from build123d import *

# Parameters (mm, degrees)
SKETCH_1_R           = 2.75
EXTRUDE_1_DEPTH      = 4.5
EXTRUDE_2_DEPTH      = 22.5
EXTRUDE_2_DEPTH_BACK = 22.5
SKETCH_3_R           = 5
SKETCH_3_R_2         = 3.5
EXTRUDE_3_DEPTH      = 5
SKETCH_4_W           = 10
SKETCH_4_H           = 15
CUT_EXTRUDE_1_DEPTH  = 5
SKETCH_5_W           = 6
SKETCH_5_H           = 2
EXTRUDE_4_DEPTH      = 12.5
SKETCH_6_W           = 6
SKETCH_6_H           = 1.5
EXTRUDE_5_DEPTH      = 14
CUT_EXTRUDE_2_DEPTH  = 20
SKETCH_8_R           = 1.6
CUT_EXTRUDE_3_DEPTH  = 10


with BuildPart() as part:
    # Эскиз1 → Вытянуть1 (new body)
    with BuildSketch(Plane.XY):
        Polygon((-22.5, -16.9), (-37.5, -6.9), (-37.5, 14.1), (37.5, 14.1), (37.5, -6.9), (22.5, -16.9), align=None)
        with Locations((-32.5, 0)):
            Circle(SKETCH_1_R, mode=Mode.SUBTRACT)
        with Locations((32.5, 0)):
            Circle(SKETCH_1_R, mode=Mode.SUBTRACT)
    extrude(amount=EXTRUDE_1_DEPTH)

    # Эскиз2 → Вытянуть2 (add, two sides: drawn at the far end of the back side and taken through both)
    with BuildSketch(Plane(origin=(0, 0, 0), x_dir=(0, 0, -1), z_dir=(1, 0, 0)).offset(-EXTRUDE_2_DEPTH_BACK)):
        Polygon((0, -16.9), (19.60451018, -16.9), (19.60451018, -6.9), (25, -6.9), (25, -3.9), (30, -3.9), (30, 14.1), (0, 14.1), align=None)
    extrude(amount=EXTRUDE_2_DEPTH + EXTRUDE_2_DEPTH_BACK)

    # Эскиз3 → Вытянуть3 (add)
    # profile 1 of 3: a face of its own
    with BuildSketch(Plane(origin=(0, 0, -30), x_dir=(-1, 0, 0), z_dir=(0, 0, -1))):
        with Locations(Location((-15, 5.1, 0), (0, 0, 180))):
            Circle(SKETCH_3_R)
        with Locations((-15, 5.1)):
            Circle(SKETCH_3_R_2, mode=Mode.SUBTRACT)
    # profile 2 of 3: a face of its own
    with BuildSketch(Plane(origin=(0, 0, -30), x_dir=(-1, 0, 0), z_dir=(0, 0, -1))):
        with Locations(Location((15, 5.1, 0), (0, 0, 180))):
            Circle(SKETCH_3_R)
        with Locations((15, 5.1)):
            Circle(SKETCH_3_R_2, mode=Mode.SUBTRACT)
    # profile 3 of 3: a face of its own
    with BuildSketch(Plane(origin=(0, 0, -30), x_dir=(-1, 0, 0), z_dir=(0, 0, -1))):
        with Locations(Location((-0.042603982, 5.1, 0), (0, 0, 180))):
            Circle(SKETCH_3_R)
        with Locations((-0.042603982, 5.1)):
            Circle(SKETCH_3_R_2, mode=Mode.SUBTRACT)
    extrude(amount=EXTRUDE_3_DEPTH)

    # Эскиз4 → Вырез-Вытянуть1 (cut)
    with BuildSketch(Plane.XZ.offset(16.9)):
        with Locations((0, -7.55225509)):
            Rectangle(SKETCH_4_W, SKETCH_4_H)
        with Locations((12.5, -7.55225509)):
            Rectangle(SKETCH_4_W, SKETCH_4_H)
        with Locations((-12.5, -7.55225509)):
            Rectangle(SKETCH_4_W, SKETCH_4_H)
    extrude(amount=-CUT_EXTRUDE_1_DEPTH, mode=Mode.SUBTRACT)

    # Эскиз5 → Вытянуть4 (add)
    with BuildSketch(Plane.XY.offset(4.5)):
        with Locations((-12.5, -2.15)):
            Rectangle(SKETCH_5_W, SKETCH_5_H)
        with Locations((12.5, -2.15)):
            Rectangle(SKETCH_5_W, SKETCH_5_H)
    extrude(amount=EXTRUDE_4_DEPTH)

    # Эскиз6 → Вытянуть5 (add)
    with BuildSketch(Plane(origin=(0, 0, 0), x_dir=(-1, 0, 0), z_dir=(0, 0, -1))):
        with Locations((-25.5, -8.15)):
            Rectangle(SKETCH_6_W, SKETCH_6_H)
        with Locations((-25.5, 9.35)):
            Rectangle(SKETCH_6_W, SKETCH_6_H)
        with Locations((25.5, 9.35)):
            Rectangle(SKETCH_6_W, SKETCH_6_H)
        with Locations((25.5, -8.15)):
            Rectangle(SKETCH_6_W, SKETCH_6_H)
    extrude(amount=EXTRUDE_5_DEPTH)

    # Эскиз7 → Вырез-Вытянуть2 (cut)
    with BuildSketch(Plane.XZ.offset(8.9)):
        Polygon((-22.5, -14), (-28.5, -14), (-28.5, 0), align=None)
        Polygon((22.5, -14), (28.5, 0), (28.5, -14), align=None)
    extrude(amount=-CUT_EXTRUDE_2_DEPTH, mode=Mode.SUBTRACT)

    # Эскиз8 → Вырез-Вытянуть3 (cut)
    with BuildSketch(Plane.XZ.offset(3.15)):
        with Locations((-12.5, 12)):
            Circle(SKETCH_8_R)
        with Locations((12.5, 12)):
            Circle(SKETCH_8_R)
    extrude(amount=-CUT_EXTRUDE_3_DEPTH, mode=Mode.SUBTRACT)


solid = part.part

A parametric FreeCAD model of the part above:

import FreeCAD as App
import Part
import Sketcher

doc = App.newDocument("Part")
body = doc.addObject("PartDesign::Body", "Body")

# Sketch on XY plane
sketch1 = body.newObject("Sketcher::SketchObject", "Sketch")
sketch1.AttachmentSupport = (doc.getObject("XY_Plane"), [""])
sketch1.MapMode = "FlatFace"
sketch1.addGeometry(Part.LineSegment(App.Vector(-37.5, -6.9, 0), App.Vector(-22.5, -16.9, 0)), False)
sketch1.addGeometry(Part.LineSegment(App.Vector(-22.5, -16.9, 0), App.Vector(22.5, -16.9, 0)), False)
sketch1.addGeometry(Part.LineSegment(App.Vector(22.5, -16.9, 0), App.Vector(37.5, -6.9, 0)), False)
sketch1.addGeometry(Part.LineSegment(App.Vector(37.5, -6.9, 0), App.Vector(37.5, 14.1, 0)), False)
sketch1.addGeometry(Part.LineSegment(App.Vector(37.5, 14.1, 0), App.Vector(-37.5, 14.1, 0)), False)
sketch1.addGeometry(Part.LineSegment(App.Vector(-37.5, 14.1, 0), App.Vector(-37.5, -6.9, 0)), False)
sketch1.addGeometry(Part.Circle(App.Vector(32.5, 0, 0), App.Vector(0, 0, 1), 2.75), False)
sketch1.addGeometry(Part.Circle(App.Vector(-32.5, 0, 0), App.Vector(0, 0, 1), 2.75), False)
sketch1.addConstraint(Sketcher.Constraint("Coincident", 0, 2, 1, 1))
sketch1.addConstraint(Sketcher.Constraint("Coincident", 1, 2, 2, 1))
sketch1.addConstraint(Sketcher.Constraint("Coincident", 2, 2, 3, 1))
sketch1.addConstraint(Sketcher.Constraint("Coincident", 3, 2, 4, 1))
sketch1.addConstraint(Sketcher.Constraint("Coincident", 4, 2, 5, 1))
sketch1.addConstraint(Sketcher.Constraint("Coincident", 5, 2, 0, 1))
sketch1.addConstraint(Sketcher.Constraint("Horizontal", 1))
sketch1.addConstraint(Sketcher.Constraint("Vertical", 3))
sketch1.addConstraint(Sketcher.Constraint("Horizontal", 4))
sketch1.addConstraint(Sketcher.Constraint("Vertical", 5))
sketch1.addConstraint(Sketcher.Constraint("Equal", 6, 7))
sketch1.addConstraint(Sketcher.Constraint("Symmetric", 6, 3, 7, 3, -1, 1))
sketch1.addConstraint(Sketcher.Constraint("Symmetric", 2, 2, 5, 2, -2))
sketch1.addConstraint(Sketcher.Constraint("PointOnObject", 6, 3, -1))
sketch1.addConstraint(Sketcher.Constraint("Equal", 0, 2))
sketch1.addConstraint(Sketcher.Constraint("Diameter", 6, 5.5))
sketch1.addConstraint(Sketcher.Constraint("DistanceX", 1, 1, 1, 2, 45.0))
sketch1.addConstraint(Sketcher.Constraint("DistanceX", 4, 2, 4, 1, 75.0))
sketch1.addConstraint(Sketcher.Constraint("DistanceY", 3, 1, 3, 2, 21.0))
sketch1.addConstraint(Sketcher.Constraint("DistanceX", 7, 3, 6, 3, 65.0))
sketch1.addConstraint(Sketcher.Constraint("DistanceY", 1, 2, 2, 2, 10.0))
sketch1.addConstraint(Sketcher.Constraint("DistanceY", 0, 2, -1, 1, 16.9))
pad1 = body.newObject("PartDesign::Pad", "Pad")
pad1.Profile = sketch1
pad1.Length = 4.5

# Sketch on YZ plane
sketch2 = body.newObject("Sketcher::SketchObject", "Sketch001")
sketch2.AttachmentSupport = (doc.getObject("YZ_Plane"), [""])
sketch2.MapMode = "FlatFace"
sketch2.addGeometry(Part.LineSegment(App.Vector(-16.9, 0, 0), App.Vector(-16.9, -19.60451, 0)), False)
sketch2.addGeometry(Part.LineSegment(App.Vector(-16.9, -19.60451, 0), App.Vector(-6.9, -19.60451, 0)), False)
sketch2.addGeometry(Part.LineSegment(App.Vector(-6.9, -19.60451, 0), App.Vector(-6.9, -25, 0)), False)
sketch2.addGeometry(Part.LineSegment(App.Vector(-6.9, -25, 0), App.Vector(-3.9, -25, 0)), False)
sketch2.addGeometry(Part.LineSegment(App.Vector(-3.9, -25, 0), App.Vector(-3.9, -30, 0)), False)
sketch2.addGeometry(Part.LineSegment(App.Vector(-3.9, -30, 0), App.Vector(14.1, -30, 0)), False)
sketch2.addGeometry(Part.LineSegment(App.Vector(14.1, -30, 0), App.Vector(14.1, 0, 0)), False)
sketch2.addGeometry(Part.LineSegment(App.Vector(14.1, 0, 0), App.Vector(-16.9, 0, 0)), False)
sketch2.addConstraint(Sketcher.Constraint("Coincident", 0, 2, 1, 1))
sketch2.addConstraint(Sketcher.Constraint("Coincident", 1, 2, 2, 1))
sketch2.addConstraint(Sketcher.Constraint("Coincident", 2, 2, 3, 1))
sketch2.addConstraint(Sketcher.Constraint("Coincident", 3, 2, 4, 1))
sketch2.addConstraint(Sketcher.Constraint("Coincident", 4, 2, 5, 1))
sketch2.addConstraint(Sketcher.Constraint("Coincident", 5, 2, 6, 1))
sketch2.addConstraint(Sketcher.Constraint("Coincident", 6, 2, 7, 1))
sketch2.addConstraint(Sketcher.Constraint("Coincident", 7, 2, 0, 1))
sketch2.addConstraint(Sketcher.Constraint("Vertical", 0))
sketch2.addConstraint(Sketcher.Constraint("Horizontal", 1))
sketch2.addConstraint(Sketcher.Constraint("Vertical", 2))
sketch2.addConstraint(Sketcher.Constraint("Horizontal", 3))
sketch2.addConstraint(Sketcher.Constraint("Vertical", 4))
sketch2.addConstraint(Sketcher.Constraint("Horizontal", 5))
sketch2.addConstraint(Sketcher.Constraint("Vertical", 6))
sketch2.addConstraint(Sketcher.Constraint("Horizontal", 7))
sketch2.addConstraint(Sketcher.Constraint("PointOnObject", 6, 2, -1))
sketch2.addConstraint(Sketcher.Constraint("DistanceX", 1, 1, 1, 2, 10.0))
sketch2.addConstraint(Sketcher.Constraint("DistanceX", 3, 1, 3, 2, 3.0))
sketch2.addConstraint(Sketcher.Constraint("DistanceX", 5, 1, 5, 2, 18.0))
sketch2.addConstraint(Sketcher.Constraint("DistanceY", 4, 2, 4, 1, 5.0))
sketch2.addConstraint(Sketcher.Constraint("DistanceY", 6, 1, 6, 2, 30.0))
sketch2.addConstraint(Sketcher.Constraint("DistanceX", 0, 2, -1, 1, 16.9))
sketch2.addConstraint(Sketcher.Constraint("DistanceY", 0, 2, 0, 1, 19.60451))
pad2 = body.newObject("PartDesign::Pad", "Pad001")
pad2.Profile = sketch2
pad2.Type = "TwoLengths"
pad2.Length = 22.5
pad2.Length2 = 22.5

# Sketch on XY plane
sketch3 = body.newObject("Sketcher::SketchObject", "Sketch002")
sketch3.AttachmentSupport = (doc.getObject("XY_Plane"), [""])
sketch3.MapMode = "FlatFace"
sketch3.AttachmentOffset = App.Placement(App.Vector(0, 0, -30), App.Rotation())
sketch3.addGeometry(Part.Circle(App.Vector(15, 5.1, 0), App.Vector(0, 0, 1), 5), False)
sketch3.addGeometry(Part.Circle(App.Vector(15, 5.1, 0), App.Vector(0, 0, 1), 3.5), False)
sketch3.addGeometry(Part.Circle(App.Vector(-15, 5.1, 0), App.Vector(0, 0, 1), 5), False)
sketch3.addGeometry(Part.Circle(App.Vector(-15, 5.1, 0), App.Vector(0, 0, 1), 3.5), False)
sketch3.addGeometry(Part.Circle(App.Vector(0.042604, 5.1, 0), App.Vector(0, 0, 1), 5), False)
sketch3.addGeometry(Part.Circle(App.Vector(0.042604, 5.1, 0), App.Vector(0, 0, 1), 3.5), False)
sketch3.addConstraint(Sketcher.Constraint("Coincident", 1, 3, 0, 3))
sketch3.addConstraint(Sketcher.Constraint("Coincident", 3, 3, 2, 3))
sketch3.addConstraint(Sketcher.Constraint("Coincident", 5, 3, 4, 3))
sketch3.addConstraint(Sketcher.Constraint("Equal", 0, 2))
sketch3.addConstraint(Sketcher.Constraint("Equal", 1, 3))
sketch3.addConstraint(Sketcher.Constraint("Equal", 2, 4))
sketch3.addConstraint(Sketcher.Constraint("Equal", 3, 5))
sketch3.addConstraint(Sketcher.Constraint("Symmetric", 0, 3, 2, 3, -2))
sketch3.addConstraint(Sketcher.Constraint("Horizontal", 3, 3, 4, 3))
sketch3.addConstraint(Sketcher.Constraint("Diameter", 0, 10.0))
sketch3.addConstraint(Sketcher.Constraint("Diameter", 1, 7.0))
sketch3.addConstraint(Sketcher.Constraint("DistanceX", -1, 1, 0, 3, 15.0))
sketch3.addConstraint(Sketcher.Constraint("DistanceY", -1, 1, 0, 3, 5.1))
sketch3.addConstraint(Sketcher.Constraint("DistanceX", -1, 1, 4, 3, 0.042604))
pad3 = body.newObject("PartDesign::Pad", "Pad002")
pad3.Profile = sketch3
pad3.Length = 5
pad3.Reversed = True

# Sketch on XZ plane
sketch4 = body.newObject("Sketcher::SketchObject", "Sketch003")
sketch4.AttachmentSupport = (doc.getObject("XZ_Plane"), [""])
sketch4.MapMode = "FlatFace"
sketch4.AttachmentOffset = App.Placement(App.Vector(0, 0, 16.9), App.Rotation())
sketch4.addGeometry(Part.LineSegment(App.Vector(-5, -0.052255, 0), App.Vector(-5, -15.052255, 0)), False)
sketch4.addGeometry(Part.LineSegment(App.Vector(-5, -15.052255, 0), App.Vector(5, -15.052255, 0)), False)
sketch4.addGeometry(Part.LineSegment(App.Vector(5, -15.052255, 0), App.Vector(5, -0.052255, 0)), False)
sketch4.addGeometry(Part.LineSegment(App.Vector(5, -0.052255, 0), App.Vector(-5, -0.052255, 0)), False)
sketch4.addGeometry(Part.LineSegment(App.Vector(7.5, -0.052255, 0), App.Vector(7.5, -15.052255, 0)), False)
sketch4.addGeometry(Part.LineSegment(App.Vector(7.5, -15.052255, 0), App.Vector(17.5, -15.052255, 0)), False)
sketch4.addGeometry(Part.LineSegment(App.Vector(17.5, -15.052255, 0), App.Vector(17.5, -0.052255, 0)), False)
sketch4.addGeometry(Part.LineSegment(App.Vector(17.5, -0.052255, 0), App.Vector(7.5, -0.052255, 0)), False)
sketch4.addGeometry(Part.LineSegment(App.Vector(-17.5, -0.052255, 0), App.Vector(-17.5, -15.052255, 0)), False)
sketch4.addGeometry(Part.LineSegment(App.Vector(-17.5, -15.052255, 0), App.Vector(-7.5, -15.052255, 0)), False)
sketch4.addGeometry(Part.LineSegment(App.Vector(-7.5, -15.052255, 0), App.Vector(-7.5, -0.052255, 0)), False)
sketch4.addGeometry(Part.LineSegment(App.Vector(-7.5, -0.052255, 0), App.Vector(-17.5, -0.052255, 0)), False)
sketch4.addConstraint(Sketcher.Constraint("Coincident", 0, 2, 1, 1))
sketch4.addConstraint(Sketcher.Constraint("Coincident", 1, 2, 2, 1))
sketch4.addConstraint(Sketcher.Constraint("Coincident", 2, 2, 3, 1))
sketch4.addConstraint(Sketcher.Constraint("Coincident", 3, 2, 0, 1))
sketch4.addConstraint(Sketcher.Constraint("Coincident", 4, 2, 5, 1))
sketch4.addConstraint(Sketcher.Constraint("Coincident", 5, 2, 6, 1))
sketch4.addConstraint(Sketcher.Constraint("Coincident", 6, 2, 7, 1))
sketch4.addConstraint(Sketcher.Constraint("Coincident", 7, 2, 4, 1))
sketch4.addConstraint(Sketcher.Constraint("Coincident", 8, 2, 9, 1))
sketch4.addConstraint(Sketcher.Constraint("Coincident", 9, 2, 10, 1))
sketch4.addConstraint(Sketcher.Constraint("Coincident", 10, 2, 11, 1))
sketch4.addConstraint(Sketcher.Constraint("Coincident", 11, 2, 8, 1))
sketch4.addConstraint(Sketcher.Constraint("Vertical", 0))
sketch4.addConstraint(Sketcher.Constraint("Horizontal", 1))
sketch4.addConstraint(Sketcher.Constraint("Vertical", 2))
sketch4.addConstraint(Sketcher.Constraint("Horizontal", 3))
sketch4.addConstraint(Sketcher.Constraint("Vertical", 4))
sketch4.addConstraint(Sketcher.Constraint("Horizontal", 5))
sketch4.addConstraint(Sketcher.Constraint("Vertical", 6))
sketch4.addConstraint(Sketcher.Constraint("Horizontal", 7))
sketch4.addConstraint(Sketcher.Constraint("Vertical", 8))
sketch4.addConstraint(Sketcher.Constraint("Horizontal", 9))
sketch4.addConstraint(Sketcher.Constraint("Vertical", 10))
sketch4.addConstraint(Sketcher.Constraint("Horizontal", 11))
sketch4.addConstraint(Sketcher.Constraint("Symmetric", 5, 2, 8, 2, -2))
sketch4.addConstraint(Sketcher.Constraint("Symmetric", 7, 2, 10, 2, -2))
sketch4.addConstraint(Sketcher.Constraint("Horizontal", 1, 2, 4, 2))
sketch4.addConstraint(Sketcher.Constraint("Horizontal", 3, 2, 6, 2))
sketch4.addConstraint(Sketcher.Constraint("Equal", 3, 5))
sketch4.addConstraint(Sketcher.Constraint("DistanceX", 1, 1, 1, 2, 10.0))
sketch4.addConstraint(Sketcher.Constraint("DistanceY", 0, 2, 0, 1, 15.0))
sketch4.addConstraint(Sketcher.Constraint("DistanceX", 0, 2, -1, 1, 5.0))
sketch4.addConstraint(Sketcher.Constraint("DistanceX", 8, 2, 4, 2, 25.0))
sketch4.addConstraint(Sketcher.Constraint("DistanceY", 0, 2, -1, 1, 15.052255))
pocket1 = body.newObject("PartDesign::Pocket", "Pocket")
pocket1.Profile = sketch4
pocket1.Length = 5

# Sketch on XY plane
sketch5 = body.newObject("Sketcher::SketchObject", "Sketch004")
sketch5.AttachmentSupport = (doc.getObject("XY_Plane"), [""])
sketch5.MapMode = "FlatFace"
sketch5.AttachmentOffset = App.Placement(App.Vector(0, 0, 4.5), App.Rotation())
sketch5.addGeometry(Part.LineSegment(App.Vector(-15.5, -1.15, 0), App.Vector(-15.5, -3.15, 0)), False)
sketch5.addGeometry(Part.LineSegment(App.Vector(-15.5, -3.15, 0), App.Vector(-9.5, -3.15, 0)), False)
sketch5.addGeometry(Part.LineSegment(App.Vector(-9.5, -3.15, 0), App.Vector(-9.5, -1.15, 0)), False)
sketch5.addGeometry(Part.LineSegment(App.Vector(-9.5, -1.15, 0), App.Vector(-15.5, -1.15, 0)), False)
sketch5.addGeometry(Part.LineSegment(App.Vector(9.5, -1.15, 0), App.Vector(9.5, -3.15, 0)), False)
sketch5.addGeometry(Part.LineSegment(App.Vector(9.5, -3.15, 0), App.Vector(15.5, -3.15, 0)), False)
sketch5.addGeometry(Part.LineSegment(App.Vector(15.5, -3.15, 0), App.Vector(15.5, -1.15, 0)), False)
sketch5.addGeometry(Part.LineSegment(App.Vector(15.5, -1.15, 0), App.Vector(9.5, -1.15, 0)), False)
sketch5.addConstraint(Sketcher.Constraint("Coincident", 0, 2, 1, 1))
sketch5.addConstraint(Sketcher.Constraint("Coincident", 1, 2, 2, 1))
sketch5.addConstraint(Sketcher.Constraint("Coincident", 2, 2, 3, 1))
sketch5.addConstraint(Sketcher.Constraint("Coincident", 3, 2, 0, 1))
sketch5.addConstraint(Sketcher.Constraint("Coincident", 4, 2, 5, 1))
sketch5.addConstraint(Sketcher.Constraint("Coincident", 5, 2, 6, 1))
sketch5.addConstraint(Sketcher.Constraint("Coincident", 6, 2, 7, 1))
sketch5.addConstraint(Sketcher.Constraint("Coincident", 7, 2, 4, 1))
sketch5.addConstraint(Sketcher.Constraint("Vertical", 0))
sketch5.addConstraint(Sketcher.Constraint("Horizontal", 1))
sketch5.addConstraint(Sketcher.Constraint("Vertical", 2))
sketch5.addConstraint(Sketcher.Constraint("Horizontal", 3))
sketch5.addConstraint(Sketcher.Constraint("Vertical", 4))
sketch5.addConstraint(Sketcher.Constraint("Horizontal", 5))
sketch5.addConstraint(Sketcher.Constraint("Vertical", 6))
sketch5.addConstraint(Sketcher.Constraint("Horizontal", 7))
sketch5.addConstraint(Sketcher.Constraint("Symmetric", 1, 2, 4, 2, -2))
sketch5.addConstraint(Sketcher.Constraint("Symmetric", 3, 2, 6, 2, -2))
sketch5.addConstraint(Sketcher.Constraint("DistanceX", 1, 1, 1, 2, 6.0))
sketch5.addConstraint(Sketcher.Constraint("DistanceY", 0, 2, 0, 1, 2.0))
sketch5.addConstraint(Sketcher.Constraint("DistanceX", 1, 2, 4, 2, 19.0))
sketch5.addConstraint(Sketcher.Constraint("DistanceY", 0, 2, -1, 1, 3.15))
pad4 = body.newObject("PartDesign::Pad", "Pad003")
pad4.Profile = sketch5
pad4.Length = 12.5

# Sketch on XY plane
sketch6 = body.newObject("Sketcher::SketchObject", "Sketch005")
sketch6.AttachmentSupport = (doc.getObject("XY_Plane"), [""])
sketch6.MapMode = "FlatFace"
sketch6.addGeometry(Part.LineSegment(App.Vector(28.5, -7.4, 0), App.Vector(28.5, -8.9, 0)), False)
sketch6.addGeometry(Part.LineSegment(App.Vector(28.5, -8.9, 0), App.Vector(22.5, -8.9, 0)), False)
sketch6.addGeometry(Part.LineSegment(App.Vector(22.5, -8.9, 0), App.Vector(22.5, -7.4, 0)), False)
sketch6.addGeometry(Part.LineSegment(App.Vector(22.5, -7.4, 0), App.Vector(28.5, -7.4, 0)), False)
sketch6.addGeometry(Part.LineSegment(App.Vector(28.5, 10.1, 0), App.Vector(28.5, 8.6, 0)), False)
sketch6.addGeometry(Part.LineSegment(App.Vector(28.5, 8.6, 0), App.Vector(22.5, 8.6, 0)), False)
sketch6.addGeometry(Part.LineSegment(App.Vector(22.5, 8.6, 0), App.Vector(22.5, 10.1, 0)), False)
sketch6.addGeometry(Part.LineSegment(App.Vector(22.5, 10.1, 0), App.Vector(28.5, 10.1, 0)), False)
sketch6.addGeometry(Part.LineSegment(App.Vector(-22.5, 10.1, 0), App.Vector(-22.5, 8.6, 0)), False)
sketch6.addGeometry(Part.LineSegment(App.Vector(-22.5, 8.6, 0), App.Vector(-28.5, 8.6, 0)), False)
sketch6.addGeometry(Part.LineSegment(App.Vector(-28.5, 8.6, 0), App.Vector(-28.5, 10.1, 0)), False)
sketch6.addGeometry(Part.LineSegment(App.Vector(-28.5, 10.1, 0), App.Vector(-22.5, 10.1, 0)), False)
sketch6.addGeometry(Part.LineSegment(App.Vector(-22.5, -7.4, 0), App.Vector(-22.5, -8.9, 0)), False)
sketch6.addGeometry(Part.LineSegment(App.Vector(-22.5, -8.9, 0), App.Vector(-28.5, -8.9, 0)), False)
sketch6.addGeometry(Part.LineSegment(App.Vector(-28.5, -8.9, 0), App.Vector(-28.5, -7.4, 0)), False)
sketch6.addGeometry(Part.LineSegment(App.Vector(-28.5, -7.4, 0), App.Vector(-22.5, -7.4, 0)), False)
sketch6.addConstraint(Sketcher.Constraint("Coincident", 0, 2, 1, 1))
sketch6.addConstraint(Sketcher.Constraint("Coincident", 1, 2, 2, 1))
sketch6.addConstraint(Sketcher.Constraint("Coincident", 2, 2, 3, 1))
sketch6.addConstraint(Sketcher.Constraint("Coincident", 3, 2, 0, 1))
sketch6.addConstraint(Sketcher.Constraint("Coincident", 4, 2, 5, 1))
sketch6.addConstraint(Sketcher.Constraint("Coincident", 5, 2, 6, 1))
sketch6.addConstraint(Sketcher.Constraint("Coincident", 6, 2, 7, 1))
sketch6.addConstraint(Sketcher.Constraint("Coincident", 7, 2, 4, 1))
sketch6.addConstraint(Sketcher.Constraint("Coincident", 8, 2, 9, 1))
sketch6.addConstraint(Sketcher.Constraint("Coincident", 9, 2, 10, 1))
sketch6.addConstraint(Sketcher.Constraint("Coincident", 10, 2, 11, 1))
sketch6.addConstraint(Sketcher.Constraint("Coincident", 11, 2, 8, 1))
sketch6.addConstraint(Sketcher.Constraint("Coincident", 12, 2, 13, 1))
sketch6.addConstraint(Sketcher.Constraint("Coincident", 13, 2, 14, 1))
sketch6.addConstraint(Sketcher.Constraint("Coincident", 14, 2, 15, 1))
sketch6.addConstraint(Sketcher.Constraint("Coincident", 15, 2, 12, 1))
sketch6.addConstraint(Sketcher.Constraint("Vertical", 0))
sketch6.addConstraint(Sketcher.Constraint("Horizontal", 1))
sketch6.addConstraint(Sketcher.Constraint("Vertical", 2))
sketch6.addConstraint(Sketcher.Constraint("Horizontal", 3))
sketch6.addConstraint(Sketcher.Constraint("Vertical", 4))
sketch6.addConstraint(Sketcher.Constraint("Horizontal", 5))
sketch6.addConstraint(Sketcher.Constraint("Vertical", 6))
sketch6.addConstraint(Sketcher.Constraint("Horizontal", 7))
sketch6.addConstraint(Sketcher.Constraint("Vertical", 8))
sketch6.addConstraint(Sketcher.Constraint("Horizontal", 9))
sketch6.addConstraint(Sketcher.Constraint("Vertical", 10))
sketch6.addConstraint(Sketcher.Constraint("Horizontal", 11))
sketch6.addConstraint(Sketcher.Constraint("Vertical", 12))
sketch6.addConstraint(Sketcher.Constraint("Horizontal", 13))
sketch6.addConstraint(Sketcher.Constraint("Vertical", 14))
sketch6.addConstraint(Sketcher.Constraint("Horizontal", 15))
sketch6.addConstraint(Sketcher.Constraint("Symmetric", 5, 2, 8, 2, -2))
sketch6.addConstraint(Sketcher.Constraint("Symmetric", 7, 2, 10, 2, -2))
sketch6.addConstraint(Sketcher.Constraint("Symmetric", 1, 2, 12, 2, -2))
sketch6.addConstraint(Sketcher.Constraint("Symmetric", 3, 2, 14, 2, -2))
sketch6.addConstraint(Sketcher.Constraint("Vertical", 3, 2, 4, 2))
sketch6.addConstraint(Sketcher.Constraint("Vertical", 2, 2, 5, 2))
sketch6.addConstraint(Sketcher.Constraint("Equal", 2, 4))
sketch6.addConstraint(Sketcher.Constraint("DistanceX", 1, 2, 1, 1, 6.0))
sketch6.addConstraint(Sketcher.Constraint("DistanceY", 0, 2, 0, 1, 1.5))
sketch6.addConstraint(Sketcher.Constraint("DistanceY", 3, 2, 4, 2, 16.0))
sketch6.addConstraint(Sketcher.Constraint("DistanceX", 8, 2, 5, 2, 45.0))
sketch6.addConstraint(Sketcher.Constraint("DistanceY", 0, 2, -1, 1, 8.9))
pad5 = body.newObject("PartDesign::Pad", "Pad004")
pad5.Profile = sketch6
pad5.Length = 14
pad5.Reversed = True

# Sketch on XZ plane
sketch7 = body.newObject("Sketcher::SketchObject", "Sketch006")
sketch7.AttachmentSupport = (doc.getObject("XZ_Plane"), [""])
sketch7.MapMode = "FlatFace"
sketch7.AttachmentOffset = App.Placement(App.Vector(0, 0, 8.9), App.Rotation())
sketch7.addGeometry(Part.LineSegment(App.Vector(-28.5, -14, 0), App.Vector(-22.5, -14, 0)), False)
sketch7.addGeometry(Part.LineSegment(App.Vector(-22.5, -14, 0), App.Vector(-28.5, 0, 0)), False)
sketch7.addGeometry(Part.LineSegment(App.Vector(-28.5, 0, 0), App.Vector(-28.5, -14, 0)), False)
sketch7.addGeometry(Part.LineSegment(App.Vector(28.5, 0, 0), App.Vector(22.5, -14, 0)), False)
sketch7.addGeometry(Part.LineSegment(App.Vector(22.5, -14, 0), App.Vector(28.5, -14, 0)), False)
sketch7.addGeometry(Part.LineSegment(App.Vector(28.5, -14, 0), App.Vector(28.5, 0, 0)), False)
sketch7.addConstraint(Sketcher.Constraint("Coincident", 0, 2, 1, 1))
sketch7.addConstraint(Sketcher.Constraint("Coincident", 1, 2, 2, 1))
sketch7.addConstraint(Sketcher.Constraint("Coincident", 2, 2, 0, 1))
sketch7.addConstraint(Sketcher.Constraint("Coincident", 3, 2, 4, 1))
sketch7.addConstraint(Sketcher.Constraint("Coincident", 4, 2, 5, 1))
sketch7.addConstraint(Sketcher.Constraint("Coincident", 5, 2, 3, 1))
sketch7.addConstraint(Sketcher.Constraint("Horizontal", 0))
sketch7.addConstraint(Sketcher.Constraint("Vertical", 2))
sketch7.addConstraint(Sketcher.Constraint("Horizontal", 4))
sketch7.addConstraint(Sketcher.Constraint("Vertical", 5))
sketch7.addConstraint(Sketcher.Constraint("Symmetric", 1, 2, 5, 2, -1, 1))
sketch7.addConstraint(Sketcher.Constraint("Symmetric", 0, 2, 3, 2, -2))
sketch7.addConstraint(Sketcher.Constraint("PointOnObject", 1, 2, -1))
sketch7.addConstraint(Sketcher.Constraint("DistanceX", 0, 1, 0, 2, 6.0))
sketch7.addConstraint(Sketcher.Constraint("DistanceY", 2, 2, 2, 1, 14.0))
sketch7.addConstraint(Sketcher.Constraint("DistanceX", 0, 2, 3, 2, 45.0))
pocket2 = body.newObject("PartDesign::Pocket", "Pocket001")
pocket2.Profile = sketch7
pocket2.Length = 20

# Sketch on XZ plane
sketch8 = body.newObject("Sketcher::SketchObject", "Sketch007")
sketch8.AttachmentSupport = (doc.getObject("XZ_Plane"), [""])
sketch8.MapMode = "FlatFace"
sketch8.AttachmentOffset = App.Placement(App.Vector(0, 0, 3.15), App.Rotation())
sketch8.addGeometry(Part.Circle(App.Vector(-12.5, 12, 0), App.Vector(0, 0, 1), 1.6), False)
sketch8.addGeometry(Part.Circle(App.Vector(12.5, 12, 0), App.Vector(0, 0, 1), 1.6), False)
sketch8.addConstraint(Sketcher.Constraint("Equal", 0, 1))
sketch8.addConstraint(Sketcher.Constraint("Symmetric", 0, 3, 1, 3, -2))
sketch8.addConstraint(Sketcher.Constraint("Diameter", 0, 3.2))
sketch8.addConstraint(Sketcher.Constraint("DistanceY", -1, 1, 0, 3, 12.0))
sketch8.addConstraint(Sketcher.Constraint("DistanceX", 0, 3, 1, 3, 25.0))
pocket3 = body.newObject("PartDesign::Pocket", "Pocket002")
pocket3.Profile = sketch8
pocket3.Length = 10

doc.recompute()
